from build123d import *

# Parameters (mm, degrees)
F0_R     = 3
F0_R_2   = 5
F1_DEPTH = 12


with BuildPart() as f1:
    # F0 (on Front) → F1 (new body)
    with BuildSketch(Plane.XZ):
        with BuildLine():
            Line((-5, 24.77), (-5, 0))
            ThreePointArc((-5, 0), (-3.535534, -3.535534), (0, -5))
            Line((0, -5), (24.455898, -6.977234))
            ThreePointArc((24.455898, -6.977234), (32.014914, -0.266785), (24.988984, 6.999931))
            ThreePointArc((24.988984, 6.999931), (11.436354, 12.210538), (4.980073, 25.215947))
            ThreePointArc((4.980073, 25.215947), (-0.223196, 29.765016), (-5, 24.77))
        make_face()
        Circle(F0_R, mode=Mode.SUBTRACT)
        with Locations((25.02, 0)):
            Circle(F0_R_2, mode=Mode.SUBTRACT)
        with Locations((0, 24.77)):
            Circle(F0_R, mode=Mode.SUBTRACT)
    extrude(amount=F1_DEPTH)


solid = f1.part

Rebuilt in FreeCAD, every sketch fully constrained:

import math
import FreeCAD as App
import Part
import Sketcher

V = App.Vector
Q = App.Units.Quantity

doc = App.newDocument("Part")
params = doc.addObject("Spreadsheet::Sheet", "Params")
for row, (alias, value) in enumerate([
    ("sketch1_diameter", "6 mm"),
    ("sketch1_diameter2", "10 mm"),
    ("sketch1_radius", "7 mm"),
    ("sketch1_radius2", "20.000002 mm"),
    ("sketch1_height", "24.77 mm"),
    ("pad1_length", "12 mm"),
], start=1):
    params.set(f"A{row}", alias)
    params.set(f"B{row}", "=" + value)
    params.setAlias(f"B{row}", alias)

body = doc.addObject("PartDesign::Body", "Body")

sketch1 = body.newObject("Sketcher::SketchObject", "Sketch")
sketch1.AttachmentSupport = (doc.getObject("XZ_Plane"), [""])
sketch1.MapMode = "FlatFace"
sketch1.addGeometry(Part.LineSegment(V(-5, 24.8, 0), V(-5, 0, 0)), False)
sketch1.addGeometry(Part.ArcOfCircle(Part.Circle(V(0, 0, 0), V(0, 0, 1), 5), math.radians(180), math.radians(270)), False)
sketch1.addGeometry(Part.LineSegment(V(0, -5, 0), V(24.5, -7, 0)), False)
sketch1.addGeometry(Part.ArcOfCircle(Part.Circle(V(25, 0, 0), V(0, 0, 1), 7), math.radians(-95), math.radians(90)), False)
sketch1.addGeometry(Part.ArcOfCircle(Part.Circle(V(24.9, 27, 0), V(0, 0, 1), 20), math.radians(-175), math.radians(-90)), False)
sketch1.addGeometry(Part.ArcOfCircle(Part.Circle(V(0, 24.8, 0), V(0, 0, 1), 5), math.radians(5), math.radians(180)), False)
sketch1.addGeometry(Part.Circle(V(0, 0, 0), V(0, 0, 1), 3), False)
sketch1.addGeometry(Part.Circle(V(25, 0, 0), V(0, 0, 1), 5), False)
sketch1.addGeometry(Part.Circle(V(0, 24.8, 0), V(0, 0, 1), 3), False)
sketch1.addConstraint(Sketcher.Constraint("Tangent", 0, 2, 1, 1))
sketch1.addConstraint(Sketcher.Constraint("Coincident", 1, 2, 2, 1))
sketch1.addConstraint(Sketcher.Constraint("Tangent", 2, 2, 3, 1))
sketch1.addConstraint(Sketcher.Constraint("Tangent", 3, 2, 4, 2))
sketch1.addConstraint(Sketcher.Constraint("Tangent", 4, 1, 5, 1))
sketch1.addConstraint(Sketcher.Constraint("Tangent", 5, 2, 0, 1))
sketch1.addConstraint(Sketcher.Constraint("Vertical", 0))
sketch1.addConstraint(Sketcher.Constraint("Coincident", 1, 3, -1, 1))
sketch1.addConstraint(Sketcher.Constraint("Coincident", 6, 3, -1, 1))
sketch1.addConstraint(Sketcher.Constraint("Coincident", 7, 3, 3, 3))
sketch1.addConstraint(Sketcher.Constraint("Coincident", 8, 3, 5, 3))
sketch1.addConstraint(Sketcher.Constraint("Equal", 1, 5))
sketch1.addConstraint(Sketcher.Constraint("Equal", 5, 7))
sketch1.addConstraint(Sketcher.Constraint("Equal", 6, 8))
sketch1.addConstraint(Sketcher.Constraint("PointOnObject", 3, 3, -1))
sketch1.addConstraint(Sketcher.Constraint("PointOnObject", 1, 2, -2))
sketch1.addConstraint(Sketcher.Constraint("Diameter", 6, Q("6 mm")))
sketch1.addConstraint(Sketcher.Constraint("Diameter", 7, Q("10 mm")))
sketch1.addConstraint(Sketcher.Constraint("Radius", 3, Q("7 mm")))
sketch1.addConstraint(Sketcher.Constraint("Radius", 4, Q("20.000002 mm")))
sketch1.addConstraint(Sketcher.Constraint("DistanceY", 0, 2, 0, 1, Q("24.77 mm")))
sketch1.addConstraint(Sketcher.Constraint("DistanceX", -1, 1, 3, 3, Q("25.02 mm")))
sketch1.setExpression("Constraints[16]", "Params.sketch1_diameter")
sketch1.setExpression("Constraints[17]", "Params.sketch1_diameter2")
sketch1.setExpression("Constraints[18]", "Params.sketch1_radius")
sketch1.setExpression("Constraints[19]", "Params.sketch1_radius2")
sketch1.setExpression("Constraints[20]", "Params.sketch1_height")
pad1 = body.newObject("PartDesign::Pad", "Pad")
pad1.Profile = sketch1
pad1.setExpression("Length", "Params.pad1_length")

doc.recompute()
